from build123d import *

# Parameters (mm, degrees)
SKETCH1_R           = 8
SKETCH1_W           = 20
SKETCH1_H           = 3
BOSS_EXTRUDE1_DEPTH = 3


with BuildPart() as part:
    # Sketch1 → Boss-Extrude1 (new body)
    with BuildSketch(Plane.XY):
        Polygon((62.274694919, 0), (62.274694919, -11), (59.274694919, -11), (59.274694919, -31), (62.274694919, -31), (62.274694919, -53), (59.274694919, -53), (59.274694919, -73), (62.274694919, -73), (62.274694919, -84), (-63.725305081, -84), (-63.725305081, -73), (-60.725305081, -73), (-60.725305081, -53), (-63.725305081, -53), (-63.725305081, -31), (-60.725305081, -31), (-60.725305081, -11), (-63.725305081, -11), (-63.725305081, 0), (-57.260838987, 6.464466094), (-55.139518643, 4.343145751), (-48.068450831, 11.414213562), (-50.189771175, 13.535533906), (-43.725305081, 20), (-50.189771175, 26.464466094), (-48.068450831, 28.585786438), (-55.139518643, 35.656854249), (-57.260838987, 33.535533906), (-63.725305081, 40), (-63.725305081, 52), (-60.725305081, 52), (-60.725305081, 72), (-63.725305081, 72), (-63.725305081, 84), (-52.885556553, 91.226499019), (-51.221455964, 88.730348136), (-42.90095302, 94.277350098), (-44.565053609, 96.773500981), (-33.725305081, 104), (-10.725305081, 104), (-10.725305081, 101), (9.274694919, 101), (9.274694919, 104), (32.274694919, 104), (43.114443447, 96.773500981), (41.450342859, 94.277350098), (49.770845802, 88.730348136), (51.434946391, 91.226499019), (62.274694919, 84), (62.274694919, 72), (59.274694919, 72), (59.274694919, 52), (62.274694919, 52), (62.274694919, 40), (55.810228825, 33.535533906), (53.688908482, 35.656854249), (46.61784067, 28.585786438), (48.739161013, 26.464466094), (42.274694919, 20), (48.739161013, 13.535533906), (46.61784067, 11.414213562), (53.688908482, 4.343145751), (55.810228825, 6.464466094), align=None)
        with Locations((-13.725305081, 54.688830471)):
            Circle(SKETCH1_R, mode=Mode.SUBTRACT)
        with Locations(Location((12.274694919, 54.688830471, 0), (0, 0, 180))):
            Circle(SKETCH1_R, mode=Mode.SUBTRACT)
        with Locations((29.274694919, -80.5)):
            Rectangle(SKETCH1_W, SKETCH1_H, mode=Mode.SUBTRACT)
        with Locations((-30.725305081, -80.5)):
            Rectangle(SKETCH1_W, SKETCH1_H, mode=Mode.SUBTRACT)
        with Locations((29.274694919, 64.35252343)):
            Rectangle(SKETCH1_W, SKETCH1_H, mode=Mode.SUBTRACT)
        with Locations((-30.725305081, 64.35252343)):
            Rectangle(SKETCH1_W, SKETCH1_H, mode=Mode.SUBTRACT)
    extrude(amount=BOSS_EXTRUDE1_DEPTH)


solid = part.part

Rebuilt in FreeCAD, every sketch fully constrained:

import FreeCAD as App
import Part
import Sketcher


def add_polygon(sketch, points):
    """Adds a closed chain of lines whose ends are joined by coincident constraints."""
    first, n = sketch.GeometryCount, len(points)
    for a, b in zip(points, points[1:] + points[:1]):
        sketch.addGeometry(Part.LineSegment(App.Vector(*a, 0), App.Vector(*b, 0)), False)
    for i in range(n):
        sketch.addConstraint(Sketcher.Constraint("Coincident", first + i, 2, first + (i + 1) % n, 1))

doc = App.newDocument("Part")
body = doc.addObject("PartDesign::Body", "Body")

# Sketch on XY plane
sketch1 = body.newObject("Sketcher::SketchObject", "Sketch")
sketch1.AttachmentSupport = (doc.getObject("XY_Plane"), [""])
sketch1.MapMode = "FlatFace"
add_polygon(sketch1, [(62.3, -11), (62.3, 0), (55.8, 6.5), (53.7, 4.3), (46.6, 11.4), (48.7, 13.5), (42.3, 20), (48.7, 26.5), (46.6, 28.6), (53.7, 35.7), (55.8, 33.5), (62.3, 40), (62.3, 52), (59.3, 52), (59.3, 72), (62.3, 72), (62.3, 84), (51.4, 91.2), (49.8, 88.7), (41.5, 94.3), (43.1, 96.8), (32.3, 104), (9.3, 104), (9.3, 101), (-10.7, 101), (-10.7, 104), (-33.7, 104), (-44.6, 96.8), (-42.9, 94.3), (-51.2, 88.7), (-52.9, 91.2), (-63.7, 84), (-63.7, 72), (-60.7, 72), (-60.7, 52), (-63.7, 52), (-63.7, 40), (-57.3, 33.5), (-55.1, 35.7), (-48.1, 28.6), (-50.2, 26.5), (-43.7, 20), (-50.2, 13.5), (-48.1, 11.4), (-55.1, 4.3), (-57.3, 6.5), (-63.7, 0), (-63.7, -11), (-60.7, -11), (-60.7, -31), (-63.7, -31), (-63.7, -53), (-60.7, -53), (-60.7, -73), (-63.7, -73), (-63.7, -84), (62.3, -84), (62.3, -73), (59.3, -73), (59.3, -53), (62.3, -53), (62.3, -31), (59.3, -31), (59.3, -11)])  # lines 0-63
add_polygon(sketch1, [(19.3, -82), (19.3, -79), (39.3, -79), (39.3, -82)])  # lines 64-67
add_polygon(sketch1, [(-40.7, -82), (-40.7, -79), (-20.7, -79), (-20.7, -82)])  # lines 68-71
add_polygon(sketch1, [(19.3, 62.9), (19.3, 65.9), (39.3, 65.9), (39.3, 62.9)])  # lines 72-75
sketch1.addGeometry(Part.Circle(App.Vector(12.3, 54.7, 0), App.Vector(0, 0, 1), 8), False)  # 76
sketch1.addGeometry(Part.Circle(App.Vector(-13.7, 54.7, 0), App.Vector(0, 0, 1), 8), False)  # 77
add_polygon(sketch1, [(-40.7, 62.9), (-40.7, 65.9), (-20.7, 65.9), (-20.7, 62.9)])  # lines 78-81
sketch1.addConstraint(Sketcher.Constraint("Vertical", 0))
sketch1.addConstraint(Sketcher.Constraint("Vertical", 11))
sketch1.addConstraint(Sketcher.Constraint("Horizontal", 12))
sketch1.addConstraint(Sketcher.Constraint("Vertical", 13))
sketch1.addConstraint(Sketcher.Constraint("Horizontal", 14))
sketch1.addConstraint(Sketcher.Constraint("Vertical", 15))
sketch1.addConstraint(Sketcher.Constraint("Horizontal", 21))
sketch1.addConstraint(Sketcher.Constraint("Vertical", 22))
sketch1.addConstraint(Sketcher.Constraint("Horizontal", 23))
sketch1.addConstraint(Sketcher.Constraint("Vertical", 24))
sketch1.addConstraint(Sketcher.Constraint("Horizontal", 25))
sketch1.addConstraint(Sketcher.Constraint("Vertical", 31))
sketch1.addConstraint(Sketcher.Constraint("Horizontal", 32))
sketch1.addConstraint(Sketcher.Constraint("Vertical", 33))
sketch1.addConstraint(Sketcher.Constraint("Horizontal", 34))
sketch1.addConstraint(Sketcher.Constraint("Vertical", 35))
sketch1.addConstraint(Sketcher.Constraint("Vertical", 46))
sketch1.addConstraint(Sketcher.Constraint("Horizontal", 47))
sketch1.addConstraint(Sketcher.Constraint("Vertical", 48))
sketch1.addConstraint(Sketcher.Constraint("Horizontal", 49))
sketch1.addConstraint(Sketcher.Constraint("Vertical", 50))
sketch1.addConstraint(Sketcher.Constraint("Horizontal", 51))
sketch1.addConstraint(Sketcher.Constraint("Vertical", 52))
sketch1.addConstraint(Sketcher.Constraint("Horizontal", 53))
sketch1.addConstraint(Sketcher.Constraint("Vertical", 54))
sketch1.addConstraint(Sketcher.Constraint("Horizontal", 55))
sketch1.addConstraint(Sketcher.Constraint("Vertical", 56))
sketch1.addConstraint(Sketcher.Constraint("Horizontal", 57))
sketch1.addConstraint(Sketcher.Constraint("Vertical", 58))
sketch1.addConstraint(Sketcher.Constraint("Horizontal", 59))
sketch1.addConstraint(Sketcher.Constraint("Vertical", 60))
sketch1.addConstraint(Sketcher.Constraint("Horizontal", 61))
sketch1.addConstraint(Sketcher.Constraint("Vertical", 62))
sketch1.addConstraint(Sketcher.Constraint("Horizontal", 63))
sketch1.addConstraint(Sketcher.Constraint("Vertical", 64))
sketch1.addConstraint(Sketcher.Constraint("Horizontal", 65))
sketch1.addConstraint(Sketcher.Constraint("Vertical", 66))
sketch1.addConstraint(Sketcher.Constraint("Horizontal", 67))
sketch1.addConstraint(Sketcher.Constraint("Vertical", 68))
sketch1.addConstraint(Sketcher.Constraint("Horizontal", 69))
sketch1.addConstraint(Sketcher.Constraint("Vertical", 70))
sketch1.addConstraint(Sketcher.Constraint("Horizontal", 71))
sketch1.addConstraint(Sketcher.Constraint("Vertical", 72))
sketch1.addConstraint(Sketcher.Constraint("Horizontal", 73))
sketch1.addConstraint(Sketcher.Constraint("Vertical", 74))
sketch1.addConstraint(Sketcher.Constraint("Horizontal", 75))
sketch1.addConstraint(Sketcher.Constraint("Vertical", 78))
sketch1.addConstraint(Sketcher.Constraint("Horizontal", 79))
sketch1.addConstraint(Sketcher.Constraint("Vertical", 80))
sketch1.addConstraint(Sketcher.Constraint("Horizontal", 81))
sketch1.addConstraint(Sketcher.Constraint("Equal", 76, 77))
sketch1.addConstraint(Sketcher.Constraint("Symmetric", 30, 2, 54, 2, -1))
sketch1.addConstraint(Sketcher.Constraint("Symmetric", 15, 2, 55, 2, -1))
sketch1.addConstraint(Sketcher.Constraint("PointOnObject", 0, 2, -1))
sketch1.addConstraint(Sketcher.Constraint("PointOnObject", 45, 2, -1))
sketch1.addConstraint(Sketcher.Constraint("Perpendicular", 1, 2))
sketch1.addConstraint(Sketcher.Constraint("Perpendicular", 2, 3))
sketch1.addConstraint(Sketcher.Constraint("Perpendicular", 3, 4))
sketch1.addConstraint(Sketcher.Constraint("Perpendicular", 4, 5))
sketch1.addConstraint(Sketcher.Constraint("Perpendicular", 5, 6))
sketch1.addConstraint(Sketcher.Constraint("Perpendicular", 6, 7))
sketch1.addConstraint(Sketcher.Constraint("Perpendicular", 7, 8))
sketch1.addConstraint(Sketcher.Constraint("Perpendicular", 8, 9))
sketch1.addConstraint(Sketcher.Constraint("Perpendicular", 9, 10))
sketch1.addConstraint(Sketcher.Constraint("Perpendicular", 16, 17))
sketch1.addConstraint(Sketcher.Constraint("Perpendicular", 17, 18))
sketch1.addConstraint(Sketcher.Constraint("Perpendicular", 18, 19))
sketch1.addConstraint(Sketcher.Constraint("Perpendicular", 19, 20))
sketch1.addConstraint(Sketcher.Constraint("Perpendicular", 26, 27))
sketch1.addConstraint(Sketcher.Constraint("Perpendicular", 27, 28))
sketch1.addConstraint(Sketcher.Constraint("Perpendicular", 28, 29))
sketch1.addConstraint(Sketcher.Constraint("Perpendicular", 29, 30))
sketch1.addConstraint(Sketcher.Constraint("Perpendicular", 10, 36))
sketch1.addConstraint(Sketcher.Constraint("Perpendicular", 36, 37))
sketch1.addConstraint(Sketcher.Constraint("Perpendicular", 37, 38))
sketch1.addConstraint(Sketcher.Constraint("Perpendicular", 38, 39))
sketch1.addConstraint(Sketcher.Constraint("Perpendicular", 39, 40))
sketch1.addConstraint(Sketcher.Constraint("Perpendicular", 40, 41))
sketch1.addConstraint(Sketcher.Constraint("Perpendicular", 41, 42))
sketch1.addConstraint(Sketcher.Constraint("Perpendicular", 42, 43))
sketch1.addConstraint(Sketcher.Constraint("Perpendicular", 43, 44))
sketch1.addConstraint(Sketcher.Constraint("Perpendicular", 44, 45))
sketch1.addConstraint(Sketcher.Constraint("Horizontal", 76, 3, 77, 3))
sketch1.addConstraint(Sketcher.Constraint("Horizontal", 21, 2, 24, 2))
sketch1.addConstraint(Sketcher.Constraint("Horizontal", 19, 2, 26, 2))
sketch1.addConstraint(Sketcher.Constraint("Horizontal", 18, 2, 27, 2))
sketch1.addConstraint(Sketcher.Constraint("Horizontal", 17, 2, 28, 2))
sketch1.addConstraint(Sketcher.Constraint("Horizontal", 16, 2, 29, 2))
sketch1.addConstraint(Sketcher.Constraint("Horizontal", 14, 2, 31, 2))
sketch1.addConstraint(Sketcher.Constraint("Horizontal", 12, 2, 33, 2))
sketch1.addConstraint(Sketcher.Constraint("Horizontal", 10, 2, 35, 2))
sketch1.addConstraint(Sketcher.Constraint("Horizontal", 9, 2, 36, 2))
sketch1.addConstraint(Sketcher.Constraint("Horizontal", 8, 2, 37, 2))
sketch1.addConstraint(Sketcher.Constraint("Horizontal", 7, 2, 38, 2))
sketch1.addConstraint(Sketcher.Constraint("Horizontal", 6, 2, 39, 2))
sketch1.addConstraint(Sketcher.Constraint("Horizontal", 5, 2, 40, 2))
sketch1.addConstraint(Sketcher.Constraint("Horizontal", 4, 2, 41, 2))
sketch1.addConstraint(Sketcher.Constraint("Horizontal", 3, 2, 42, 2))
sketch1.addConstraint(Sketcher.Constraint("Horizontal", 2, 2, 43, 2))
sketch1.addConstraint(Sketcher.Constraint("Horizontal", 1, 2, 44, 2))
sketch1.addConstraint(Sketcher.Constraint("Horizontal", 53, 2, 56, 2))
sketch1.addConstraint(Sketcher.Constraint("Horizontal", 51, 2, 58, 2))
sketch1.addConstraint(Sketcher.Constraint("Horizontal", 49, 2, 60, 2))
sketch1.addConstraint(Sketcher.Constraint("Horizontal", 47, 2, 62, 2))
sketch1.addConstraint(Sketcher.Constraint("Horizontal", 65, 2, 68, 2))
sketch1.addConstraint(Sketcher.Constraint("Horizontal", 67, 2, 70, 2))
sketch1.addConstraint(Sketcher.Constraint("Horizontal", 73, 2, 78, 2))
sketch1.addConstraint(Sketcher.Constraint("Horizontal", 75, 2, 80, 2))
sketch1.addConstraint(Sketcher.Constraint("Vertical", 4, 2, 6, 2))
sketch1.addConstraint(Sketcher.Constraint("Vertical", 3, 2, 7, 2))
sketch1.addConstraint(Sketcher.Constraint("Vertical", 2, 2, 8, 2))
sketch1.addConstraint(Sketcher.Constraint("Vertical", 1, 2, 9, 2))
sketch1.addConstraint(Sketcher.Constraint("Vertical", 0, 2, 10, 2))
sketch1.addConstraint(Sketcher.Constraint("Vertical", 11, 2, 14, 2))
sketch1.addConstraint(Sketcher.Constraint("Vertical", 31, 2, 34, 2))
sketch1.addConstraint(Sketcher.Constraint("Vertical", 39, 2, 41, 2))
sketch1.addConstraint(Sketcher.Constraint("Vertical", 33, 2, 47, 2))
sketch1.addConstraint(Sketcher.Constraint("Vertical", 46, 2, 49, 2))
sketch1.addConstraint(Sketcher.Constraint("Vertical", 48, 2, 51, 2))
sketch1.addConstraint(Sketcher.Constraint("Vertical", 13, 2, 57, 2))
sketch1.addConstraint(Sketcher.Constraint("Vertical", 56, 2, 59, 2))
sketch1.addConstraint(Sketcher.Constraint("Vertical", 58, 2, 61, 2))
sketch1.addConstraint(Sketcher.Constraint("Vertical", 67, 2, 72, 2))
sketch1.addConstraint(Sketcher.Constraint("Vertical", 66, 2, 73, 2))
sketch1.addConstraint(Sketcher.Constraint("Vertical", 71, 2, 78, 2))
sketch1.addConstraint(Sketcher.Constraint("Vertical", 70, 2, 79, 2))
sketch1.addConstraint(Sketcher.Constraint("Equal", 21, 25))
sketch1.addConstraint(Sketcher.Constraint("Equal", 14, 32))
sketch1.addConstraint(Sketcher.Constraint("Equal", 23, 65))
sketch1.addConstraint(Sketcher.Constraint("Equal", 67, 69))
sketch1.addConstraint(Sketcher.Constraint("Equal", 81, 13))
sketch1.addConstraint(Sketcher.Constraint("Equal", 11, 15))
sketch1.addConstraint(Sketcher.Constraint("Equal", 63, 22))
sketch1.addConstraint(Sketcher.Constraint("Equal", 33, 48))
sketch1.addConstraint(Sketcher.Constraint("Equal", 48, 52))
sketch1.addConstraint(Sketcher.Constraint("Equal", 46, 54))
sketch1.addConstraint(Sketcher.Constraint("Equal", 24, 64))
sketch1.addConstraint(Sketcher.Constraint("Equal", 70, 72))
sketch1.addConstraint(Sketcher.Constraint("Equal", 2, 4))
sketch1.addConstraint(Sketcher.Constraint("Equal", 1, 5))
sketch1.addConstraint(Sketcher.Constraint("Equal", 9, 17))
sketch1.addConstraint(Sketcher.Constraint("Equal", 8, 18))
sketch1.addConstraint(Sketcher.Constraint("Equal", 17, 19))
sketch1.addConstraint(Sketcher.Constraint("Equal", 16, 20))
sketch1.addConstraint(Sketcher.Constraint("Equal", 20, 26))
sketch1.addConstraint(Sketcher.Constraint("Diameter", 76, 16.0))
sketch1.addConstraint(Sketcher.Constraint("DistanceX", 12, 2, 12, 1, 3.0))
sketch1.addConstraint(Sketcher.Constraint("DistanceX", 21, 2, 21, 1, 23.0))
sketch1.addConstraint(Sketcher.Constraint("DistanceX", 23, 2, 23, 1, 20.0))
sketch1.addConstraint(Sketcher.Constraint("DistanceX", 55, 1, 55, 2, 126.0))
sketch1.addConstraint(Sketcher.Constraint("DistanceY", 0, 1, 0, 2, 11.0))
sketch1.addConstraint(Sketcher.Constraint("DistanceY", 11, 1, 11, 2, 12.0))
sketch1.addConstraint(Sketcher.Constraint("DistanceY", 50, 2, 50, 1, 22.0))
sketch1.addConstraint(Sketcher.Constraint("Distance", 2, 3.0))
sketch1.addConstraint(Sketcher.Constraint("Distance", 3, 10.0))
sketch1.addConstraint(Sketcher.Constraint("DistanceY", -1, 1, 20, 2, 104.0))
sketch1.addConstraint(Sketcher.Constraint("DistanceY", 64, 2, -1, 1, 79.0))
sketch1.addConstraint(Sketcher.Constraint("DistanceY", -1, 1, 76, 3, 54.68883))
sketch1.addConstraint(Sketcher.Constraint("DistanceX", -1, 1, 1, 2, 55.810229))
sketch1.addConstraint(Sketcher.Constraint("DistanceX", -1, 1, 76, 3, 12.274695))
sketch1.addConstraint(Sketcher.Constraint("DistanceX", 77, 3, -1, 1, 13.725305))
sketch1.addConstraint(Sketcher.Constraint("DistanceX", -1, 1, 64, 2, 19.274695))
sketch1.addConstraint(Sketcher.Constraint("DistanceX", 68, 2, -1, 1, 40.725305))
sketch1.addConstraint(Sketcher.Constraint("DistanceY", -1, 1, 72, 2, 65.852523))
pad1 = body.newObject("PartDesign::Pad", "Pad")
pad1.Profile = sketch1
pad1.Length = 3

doc.recompute()
